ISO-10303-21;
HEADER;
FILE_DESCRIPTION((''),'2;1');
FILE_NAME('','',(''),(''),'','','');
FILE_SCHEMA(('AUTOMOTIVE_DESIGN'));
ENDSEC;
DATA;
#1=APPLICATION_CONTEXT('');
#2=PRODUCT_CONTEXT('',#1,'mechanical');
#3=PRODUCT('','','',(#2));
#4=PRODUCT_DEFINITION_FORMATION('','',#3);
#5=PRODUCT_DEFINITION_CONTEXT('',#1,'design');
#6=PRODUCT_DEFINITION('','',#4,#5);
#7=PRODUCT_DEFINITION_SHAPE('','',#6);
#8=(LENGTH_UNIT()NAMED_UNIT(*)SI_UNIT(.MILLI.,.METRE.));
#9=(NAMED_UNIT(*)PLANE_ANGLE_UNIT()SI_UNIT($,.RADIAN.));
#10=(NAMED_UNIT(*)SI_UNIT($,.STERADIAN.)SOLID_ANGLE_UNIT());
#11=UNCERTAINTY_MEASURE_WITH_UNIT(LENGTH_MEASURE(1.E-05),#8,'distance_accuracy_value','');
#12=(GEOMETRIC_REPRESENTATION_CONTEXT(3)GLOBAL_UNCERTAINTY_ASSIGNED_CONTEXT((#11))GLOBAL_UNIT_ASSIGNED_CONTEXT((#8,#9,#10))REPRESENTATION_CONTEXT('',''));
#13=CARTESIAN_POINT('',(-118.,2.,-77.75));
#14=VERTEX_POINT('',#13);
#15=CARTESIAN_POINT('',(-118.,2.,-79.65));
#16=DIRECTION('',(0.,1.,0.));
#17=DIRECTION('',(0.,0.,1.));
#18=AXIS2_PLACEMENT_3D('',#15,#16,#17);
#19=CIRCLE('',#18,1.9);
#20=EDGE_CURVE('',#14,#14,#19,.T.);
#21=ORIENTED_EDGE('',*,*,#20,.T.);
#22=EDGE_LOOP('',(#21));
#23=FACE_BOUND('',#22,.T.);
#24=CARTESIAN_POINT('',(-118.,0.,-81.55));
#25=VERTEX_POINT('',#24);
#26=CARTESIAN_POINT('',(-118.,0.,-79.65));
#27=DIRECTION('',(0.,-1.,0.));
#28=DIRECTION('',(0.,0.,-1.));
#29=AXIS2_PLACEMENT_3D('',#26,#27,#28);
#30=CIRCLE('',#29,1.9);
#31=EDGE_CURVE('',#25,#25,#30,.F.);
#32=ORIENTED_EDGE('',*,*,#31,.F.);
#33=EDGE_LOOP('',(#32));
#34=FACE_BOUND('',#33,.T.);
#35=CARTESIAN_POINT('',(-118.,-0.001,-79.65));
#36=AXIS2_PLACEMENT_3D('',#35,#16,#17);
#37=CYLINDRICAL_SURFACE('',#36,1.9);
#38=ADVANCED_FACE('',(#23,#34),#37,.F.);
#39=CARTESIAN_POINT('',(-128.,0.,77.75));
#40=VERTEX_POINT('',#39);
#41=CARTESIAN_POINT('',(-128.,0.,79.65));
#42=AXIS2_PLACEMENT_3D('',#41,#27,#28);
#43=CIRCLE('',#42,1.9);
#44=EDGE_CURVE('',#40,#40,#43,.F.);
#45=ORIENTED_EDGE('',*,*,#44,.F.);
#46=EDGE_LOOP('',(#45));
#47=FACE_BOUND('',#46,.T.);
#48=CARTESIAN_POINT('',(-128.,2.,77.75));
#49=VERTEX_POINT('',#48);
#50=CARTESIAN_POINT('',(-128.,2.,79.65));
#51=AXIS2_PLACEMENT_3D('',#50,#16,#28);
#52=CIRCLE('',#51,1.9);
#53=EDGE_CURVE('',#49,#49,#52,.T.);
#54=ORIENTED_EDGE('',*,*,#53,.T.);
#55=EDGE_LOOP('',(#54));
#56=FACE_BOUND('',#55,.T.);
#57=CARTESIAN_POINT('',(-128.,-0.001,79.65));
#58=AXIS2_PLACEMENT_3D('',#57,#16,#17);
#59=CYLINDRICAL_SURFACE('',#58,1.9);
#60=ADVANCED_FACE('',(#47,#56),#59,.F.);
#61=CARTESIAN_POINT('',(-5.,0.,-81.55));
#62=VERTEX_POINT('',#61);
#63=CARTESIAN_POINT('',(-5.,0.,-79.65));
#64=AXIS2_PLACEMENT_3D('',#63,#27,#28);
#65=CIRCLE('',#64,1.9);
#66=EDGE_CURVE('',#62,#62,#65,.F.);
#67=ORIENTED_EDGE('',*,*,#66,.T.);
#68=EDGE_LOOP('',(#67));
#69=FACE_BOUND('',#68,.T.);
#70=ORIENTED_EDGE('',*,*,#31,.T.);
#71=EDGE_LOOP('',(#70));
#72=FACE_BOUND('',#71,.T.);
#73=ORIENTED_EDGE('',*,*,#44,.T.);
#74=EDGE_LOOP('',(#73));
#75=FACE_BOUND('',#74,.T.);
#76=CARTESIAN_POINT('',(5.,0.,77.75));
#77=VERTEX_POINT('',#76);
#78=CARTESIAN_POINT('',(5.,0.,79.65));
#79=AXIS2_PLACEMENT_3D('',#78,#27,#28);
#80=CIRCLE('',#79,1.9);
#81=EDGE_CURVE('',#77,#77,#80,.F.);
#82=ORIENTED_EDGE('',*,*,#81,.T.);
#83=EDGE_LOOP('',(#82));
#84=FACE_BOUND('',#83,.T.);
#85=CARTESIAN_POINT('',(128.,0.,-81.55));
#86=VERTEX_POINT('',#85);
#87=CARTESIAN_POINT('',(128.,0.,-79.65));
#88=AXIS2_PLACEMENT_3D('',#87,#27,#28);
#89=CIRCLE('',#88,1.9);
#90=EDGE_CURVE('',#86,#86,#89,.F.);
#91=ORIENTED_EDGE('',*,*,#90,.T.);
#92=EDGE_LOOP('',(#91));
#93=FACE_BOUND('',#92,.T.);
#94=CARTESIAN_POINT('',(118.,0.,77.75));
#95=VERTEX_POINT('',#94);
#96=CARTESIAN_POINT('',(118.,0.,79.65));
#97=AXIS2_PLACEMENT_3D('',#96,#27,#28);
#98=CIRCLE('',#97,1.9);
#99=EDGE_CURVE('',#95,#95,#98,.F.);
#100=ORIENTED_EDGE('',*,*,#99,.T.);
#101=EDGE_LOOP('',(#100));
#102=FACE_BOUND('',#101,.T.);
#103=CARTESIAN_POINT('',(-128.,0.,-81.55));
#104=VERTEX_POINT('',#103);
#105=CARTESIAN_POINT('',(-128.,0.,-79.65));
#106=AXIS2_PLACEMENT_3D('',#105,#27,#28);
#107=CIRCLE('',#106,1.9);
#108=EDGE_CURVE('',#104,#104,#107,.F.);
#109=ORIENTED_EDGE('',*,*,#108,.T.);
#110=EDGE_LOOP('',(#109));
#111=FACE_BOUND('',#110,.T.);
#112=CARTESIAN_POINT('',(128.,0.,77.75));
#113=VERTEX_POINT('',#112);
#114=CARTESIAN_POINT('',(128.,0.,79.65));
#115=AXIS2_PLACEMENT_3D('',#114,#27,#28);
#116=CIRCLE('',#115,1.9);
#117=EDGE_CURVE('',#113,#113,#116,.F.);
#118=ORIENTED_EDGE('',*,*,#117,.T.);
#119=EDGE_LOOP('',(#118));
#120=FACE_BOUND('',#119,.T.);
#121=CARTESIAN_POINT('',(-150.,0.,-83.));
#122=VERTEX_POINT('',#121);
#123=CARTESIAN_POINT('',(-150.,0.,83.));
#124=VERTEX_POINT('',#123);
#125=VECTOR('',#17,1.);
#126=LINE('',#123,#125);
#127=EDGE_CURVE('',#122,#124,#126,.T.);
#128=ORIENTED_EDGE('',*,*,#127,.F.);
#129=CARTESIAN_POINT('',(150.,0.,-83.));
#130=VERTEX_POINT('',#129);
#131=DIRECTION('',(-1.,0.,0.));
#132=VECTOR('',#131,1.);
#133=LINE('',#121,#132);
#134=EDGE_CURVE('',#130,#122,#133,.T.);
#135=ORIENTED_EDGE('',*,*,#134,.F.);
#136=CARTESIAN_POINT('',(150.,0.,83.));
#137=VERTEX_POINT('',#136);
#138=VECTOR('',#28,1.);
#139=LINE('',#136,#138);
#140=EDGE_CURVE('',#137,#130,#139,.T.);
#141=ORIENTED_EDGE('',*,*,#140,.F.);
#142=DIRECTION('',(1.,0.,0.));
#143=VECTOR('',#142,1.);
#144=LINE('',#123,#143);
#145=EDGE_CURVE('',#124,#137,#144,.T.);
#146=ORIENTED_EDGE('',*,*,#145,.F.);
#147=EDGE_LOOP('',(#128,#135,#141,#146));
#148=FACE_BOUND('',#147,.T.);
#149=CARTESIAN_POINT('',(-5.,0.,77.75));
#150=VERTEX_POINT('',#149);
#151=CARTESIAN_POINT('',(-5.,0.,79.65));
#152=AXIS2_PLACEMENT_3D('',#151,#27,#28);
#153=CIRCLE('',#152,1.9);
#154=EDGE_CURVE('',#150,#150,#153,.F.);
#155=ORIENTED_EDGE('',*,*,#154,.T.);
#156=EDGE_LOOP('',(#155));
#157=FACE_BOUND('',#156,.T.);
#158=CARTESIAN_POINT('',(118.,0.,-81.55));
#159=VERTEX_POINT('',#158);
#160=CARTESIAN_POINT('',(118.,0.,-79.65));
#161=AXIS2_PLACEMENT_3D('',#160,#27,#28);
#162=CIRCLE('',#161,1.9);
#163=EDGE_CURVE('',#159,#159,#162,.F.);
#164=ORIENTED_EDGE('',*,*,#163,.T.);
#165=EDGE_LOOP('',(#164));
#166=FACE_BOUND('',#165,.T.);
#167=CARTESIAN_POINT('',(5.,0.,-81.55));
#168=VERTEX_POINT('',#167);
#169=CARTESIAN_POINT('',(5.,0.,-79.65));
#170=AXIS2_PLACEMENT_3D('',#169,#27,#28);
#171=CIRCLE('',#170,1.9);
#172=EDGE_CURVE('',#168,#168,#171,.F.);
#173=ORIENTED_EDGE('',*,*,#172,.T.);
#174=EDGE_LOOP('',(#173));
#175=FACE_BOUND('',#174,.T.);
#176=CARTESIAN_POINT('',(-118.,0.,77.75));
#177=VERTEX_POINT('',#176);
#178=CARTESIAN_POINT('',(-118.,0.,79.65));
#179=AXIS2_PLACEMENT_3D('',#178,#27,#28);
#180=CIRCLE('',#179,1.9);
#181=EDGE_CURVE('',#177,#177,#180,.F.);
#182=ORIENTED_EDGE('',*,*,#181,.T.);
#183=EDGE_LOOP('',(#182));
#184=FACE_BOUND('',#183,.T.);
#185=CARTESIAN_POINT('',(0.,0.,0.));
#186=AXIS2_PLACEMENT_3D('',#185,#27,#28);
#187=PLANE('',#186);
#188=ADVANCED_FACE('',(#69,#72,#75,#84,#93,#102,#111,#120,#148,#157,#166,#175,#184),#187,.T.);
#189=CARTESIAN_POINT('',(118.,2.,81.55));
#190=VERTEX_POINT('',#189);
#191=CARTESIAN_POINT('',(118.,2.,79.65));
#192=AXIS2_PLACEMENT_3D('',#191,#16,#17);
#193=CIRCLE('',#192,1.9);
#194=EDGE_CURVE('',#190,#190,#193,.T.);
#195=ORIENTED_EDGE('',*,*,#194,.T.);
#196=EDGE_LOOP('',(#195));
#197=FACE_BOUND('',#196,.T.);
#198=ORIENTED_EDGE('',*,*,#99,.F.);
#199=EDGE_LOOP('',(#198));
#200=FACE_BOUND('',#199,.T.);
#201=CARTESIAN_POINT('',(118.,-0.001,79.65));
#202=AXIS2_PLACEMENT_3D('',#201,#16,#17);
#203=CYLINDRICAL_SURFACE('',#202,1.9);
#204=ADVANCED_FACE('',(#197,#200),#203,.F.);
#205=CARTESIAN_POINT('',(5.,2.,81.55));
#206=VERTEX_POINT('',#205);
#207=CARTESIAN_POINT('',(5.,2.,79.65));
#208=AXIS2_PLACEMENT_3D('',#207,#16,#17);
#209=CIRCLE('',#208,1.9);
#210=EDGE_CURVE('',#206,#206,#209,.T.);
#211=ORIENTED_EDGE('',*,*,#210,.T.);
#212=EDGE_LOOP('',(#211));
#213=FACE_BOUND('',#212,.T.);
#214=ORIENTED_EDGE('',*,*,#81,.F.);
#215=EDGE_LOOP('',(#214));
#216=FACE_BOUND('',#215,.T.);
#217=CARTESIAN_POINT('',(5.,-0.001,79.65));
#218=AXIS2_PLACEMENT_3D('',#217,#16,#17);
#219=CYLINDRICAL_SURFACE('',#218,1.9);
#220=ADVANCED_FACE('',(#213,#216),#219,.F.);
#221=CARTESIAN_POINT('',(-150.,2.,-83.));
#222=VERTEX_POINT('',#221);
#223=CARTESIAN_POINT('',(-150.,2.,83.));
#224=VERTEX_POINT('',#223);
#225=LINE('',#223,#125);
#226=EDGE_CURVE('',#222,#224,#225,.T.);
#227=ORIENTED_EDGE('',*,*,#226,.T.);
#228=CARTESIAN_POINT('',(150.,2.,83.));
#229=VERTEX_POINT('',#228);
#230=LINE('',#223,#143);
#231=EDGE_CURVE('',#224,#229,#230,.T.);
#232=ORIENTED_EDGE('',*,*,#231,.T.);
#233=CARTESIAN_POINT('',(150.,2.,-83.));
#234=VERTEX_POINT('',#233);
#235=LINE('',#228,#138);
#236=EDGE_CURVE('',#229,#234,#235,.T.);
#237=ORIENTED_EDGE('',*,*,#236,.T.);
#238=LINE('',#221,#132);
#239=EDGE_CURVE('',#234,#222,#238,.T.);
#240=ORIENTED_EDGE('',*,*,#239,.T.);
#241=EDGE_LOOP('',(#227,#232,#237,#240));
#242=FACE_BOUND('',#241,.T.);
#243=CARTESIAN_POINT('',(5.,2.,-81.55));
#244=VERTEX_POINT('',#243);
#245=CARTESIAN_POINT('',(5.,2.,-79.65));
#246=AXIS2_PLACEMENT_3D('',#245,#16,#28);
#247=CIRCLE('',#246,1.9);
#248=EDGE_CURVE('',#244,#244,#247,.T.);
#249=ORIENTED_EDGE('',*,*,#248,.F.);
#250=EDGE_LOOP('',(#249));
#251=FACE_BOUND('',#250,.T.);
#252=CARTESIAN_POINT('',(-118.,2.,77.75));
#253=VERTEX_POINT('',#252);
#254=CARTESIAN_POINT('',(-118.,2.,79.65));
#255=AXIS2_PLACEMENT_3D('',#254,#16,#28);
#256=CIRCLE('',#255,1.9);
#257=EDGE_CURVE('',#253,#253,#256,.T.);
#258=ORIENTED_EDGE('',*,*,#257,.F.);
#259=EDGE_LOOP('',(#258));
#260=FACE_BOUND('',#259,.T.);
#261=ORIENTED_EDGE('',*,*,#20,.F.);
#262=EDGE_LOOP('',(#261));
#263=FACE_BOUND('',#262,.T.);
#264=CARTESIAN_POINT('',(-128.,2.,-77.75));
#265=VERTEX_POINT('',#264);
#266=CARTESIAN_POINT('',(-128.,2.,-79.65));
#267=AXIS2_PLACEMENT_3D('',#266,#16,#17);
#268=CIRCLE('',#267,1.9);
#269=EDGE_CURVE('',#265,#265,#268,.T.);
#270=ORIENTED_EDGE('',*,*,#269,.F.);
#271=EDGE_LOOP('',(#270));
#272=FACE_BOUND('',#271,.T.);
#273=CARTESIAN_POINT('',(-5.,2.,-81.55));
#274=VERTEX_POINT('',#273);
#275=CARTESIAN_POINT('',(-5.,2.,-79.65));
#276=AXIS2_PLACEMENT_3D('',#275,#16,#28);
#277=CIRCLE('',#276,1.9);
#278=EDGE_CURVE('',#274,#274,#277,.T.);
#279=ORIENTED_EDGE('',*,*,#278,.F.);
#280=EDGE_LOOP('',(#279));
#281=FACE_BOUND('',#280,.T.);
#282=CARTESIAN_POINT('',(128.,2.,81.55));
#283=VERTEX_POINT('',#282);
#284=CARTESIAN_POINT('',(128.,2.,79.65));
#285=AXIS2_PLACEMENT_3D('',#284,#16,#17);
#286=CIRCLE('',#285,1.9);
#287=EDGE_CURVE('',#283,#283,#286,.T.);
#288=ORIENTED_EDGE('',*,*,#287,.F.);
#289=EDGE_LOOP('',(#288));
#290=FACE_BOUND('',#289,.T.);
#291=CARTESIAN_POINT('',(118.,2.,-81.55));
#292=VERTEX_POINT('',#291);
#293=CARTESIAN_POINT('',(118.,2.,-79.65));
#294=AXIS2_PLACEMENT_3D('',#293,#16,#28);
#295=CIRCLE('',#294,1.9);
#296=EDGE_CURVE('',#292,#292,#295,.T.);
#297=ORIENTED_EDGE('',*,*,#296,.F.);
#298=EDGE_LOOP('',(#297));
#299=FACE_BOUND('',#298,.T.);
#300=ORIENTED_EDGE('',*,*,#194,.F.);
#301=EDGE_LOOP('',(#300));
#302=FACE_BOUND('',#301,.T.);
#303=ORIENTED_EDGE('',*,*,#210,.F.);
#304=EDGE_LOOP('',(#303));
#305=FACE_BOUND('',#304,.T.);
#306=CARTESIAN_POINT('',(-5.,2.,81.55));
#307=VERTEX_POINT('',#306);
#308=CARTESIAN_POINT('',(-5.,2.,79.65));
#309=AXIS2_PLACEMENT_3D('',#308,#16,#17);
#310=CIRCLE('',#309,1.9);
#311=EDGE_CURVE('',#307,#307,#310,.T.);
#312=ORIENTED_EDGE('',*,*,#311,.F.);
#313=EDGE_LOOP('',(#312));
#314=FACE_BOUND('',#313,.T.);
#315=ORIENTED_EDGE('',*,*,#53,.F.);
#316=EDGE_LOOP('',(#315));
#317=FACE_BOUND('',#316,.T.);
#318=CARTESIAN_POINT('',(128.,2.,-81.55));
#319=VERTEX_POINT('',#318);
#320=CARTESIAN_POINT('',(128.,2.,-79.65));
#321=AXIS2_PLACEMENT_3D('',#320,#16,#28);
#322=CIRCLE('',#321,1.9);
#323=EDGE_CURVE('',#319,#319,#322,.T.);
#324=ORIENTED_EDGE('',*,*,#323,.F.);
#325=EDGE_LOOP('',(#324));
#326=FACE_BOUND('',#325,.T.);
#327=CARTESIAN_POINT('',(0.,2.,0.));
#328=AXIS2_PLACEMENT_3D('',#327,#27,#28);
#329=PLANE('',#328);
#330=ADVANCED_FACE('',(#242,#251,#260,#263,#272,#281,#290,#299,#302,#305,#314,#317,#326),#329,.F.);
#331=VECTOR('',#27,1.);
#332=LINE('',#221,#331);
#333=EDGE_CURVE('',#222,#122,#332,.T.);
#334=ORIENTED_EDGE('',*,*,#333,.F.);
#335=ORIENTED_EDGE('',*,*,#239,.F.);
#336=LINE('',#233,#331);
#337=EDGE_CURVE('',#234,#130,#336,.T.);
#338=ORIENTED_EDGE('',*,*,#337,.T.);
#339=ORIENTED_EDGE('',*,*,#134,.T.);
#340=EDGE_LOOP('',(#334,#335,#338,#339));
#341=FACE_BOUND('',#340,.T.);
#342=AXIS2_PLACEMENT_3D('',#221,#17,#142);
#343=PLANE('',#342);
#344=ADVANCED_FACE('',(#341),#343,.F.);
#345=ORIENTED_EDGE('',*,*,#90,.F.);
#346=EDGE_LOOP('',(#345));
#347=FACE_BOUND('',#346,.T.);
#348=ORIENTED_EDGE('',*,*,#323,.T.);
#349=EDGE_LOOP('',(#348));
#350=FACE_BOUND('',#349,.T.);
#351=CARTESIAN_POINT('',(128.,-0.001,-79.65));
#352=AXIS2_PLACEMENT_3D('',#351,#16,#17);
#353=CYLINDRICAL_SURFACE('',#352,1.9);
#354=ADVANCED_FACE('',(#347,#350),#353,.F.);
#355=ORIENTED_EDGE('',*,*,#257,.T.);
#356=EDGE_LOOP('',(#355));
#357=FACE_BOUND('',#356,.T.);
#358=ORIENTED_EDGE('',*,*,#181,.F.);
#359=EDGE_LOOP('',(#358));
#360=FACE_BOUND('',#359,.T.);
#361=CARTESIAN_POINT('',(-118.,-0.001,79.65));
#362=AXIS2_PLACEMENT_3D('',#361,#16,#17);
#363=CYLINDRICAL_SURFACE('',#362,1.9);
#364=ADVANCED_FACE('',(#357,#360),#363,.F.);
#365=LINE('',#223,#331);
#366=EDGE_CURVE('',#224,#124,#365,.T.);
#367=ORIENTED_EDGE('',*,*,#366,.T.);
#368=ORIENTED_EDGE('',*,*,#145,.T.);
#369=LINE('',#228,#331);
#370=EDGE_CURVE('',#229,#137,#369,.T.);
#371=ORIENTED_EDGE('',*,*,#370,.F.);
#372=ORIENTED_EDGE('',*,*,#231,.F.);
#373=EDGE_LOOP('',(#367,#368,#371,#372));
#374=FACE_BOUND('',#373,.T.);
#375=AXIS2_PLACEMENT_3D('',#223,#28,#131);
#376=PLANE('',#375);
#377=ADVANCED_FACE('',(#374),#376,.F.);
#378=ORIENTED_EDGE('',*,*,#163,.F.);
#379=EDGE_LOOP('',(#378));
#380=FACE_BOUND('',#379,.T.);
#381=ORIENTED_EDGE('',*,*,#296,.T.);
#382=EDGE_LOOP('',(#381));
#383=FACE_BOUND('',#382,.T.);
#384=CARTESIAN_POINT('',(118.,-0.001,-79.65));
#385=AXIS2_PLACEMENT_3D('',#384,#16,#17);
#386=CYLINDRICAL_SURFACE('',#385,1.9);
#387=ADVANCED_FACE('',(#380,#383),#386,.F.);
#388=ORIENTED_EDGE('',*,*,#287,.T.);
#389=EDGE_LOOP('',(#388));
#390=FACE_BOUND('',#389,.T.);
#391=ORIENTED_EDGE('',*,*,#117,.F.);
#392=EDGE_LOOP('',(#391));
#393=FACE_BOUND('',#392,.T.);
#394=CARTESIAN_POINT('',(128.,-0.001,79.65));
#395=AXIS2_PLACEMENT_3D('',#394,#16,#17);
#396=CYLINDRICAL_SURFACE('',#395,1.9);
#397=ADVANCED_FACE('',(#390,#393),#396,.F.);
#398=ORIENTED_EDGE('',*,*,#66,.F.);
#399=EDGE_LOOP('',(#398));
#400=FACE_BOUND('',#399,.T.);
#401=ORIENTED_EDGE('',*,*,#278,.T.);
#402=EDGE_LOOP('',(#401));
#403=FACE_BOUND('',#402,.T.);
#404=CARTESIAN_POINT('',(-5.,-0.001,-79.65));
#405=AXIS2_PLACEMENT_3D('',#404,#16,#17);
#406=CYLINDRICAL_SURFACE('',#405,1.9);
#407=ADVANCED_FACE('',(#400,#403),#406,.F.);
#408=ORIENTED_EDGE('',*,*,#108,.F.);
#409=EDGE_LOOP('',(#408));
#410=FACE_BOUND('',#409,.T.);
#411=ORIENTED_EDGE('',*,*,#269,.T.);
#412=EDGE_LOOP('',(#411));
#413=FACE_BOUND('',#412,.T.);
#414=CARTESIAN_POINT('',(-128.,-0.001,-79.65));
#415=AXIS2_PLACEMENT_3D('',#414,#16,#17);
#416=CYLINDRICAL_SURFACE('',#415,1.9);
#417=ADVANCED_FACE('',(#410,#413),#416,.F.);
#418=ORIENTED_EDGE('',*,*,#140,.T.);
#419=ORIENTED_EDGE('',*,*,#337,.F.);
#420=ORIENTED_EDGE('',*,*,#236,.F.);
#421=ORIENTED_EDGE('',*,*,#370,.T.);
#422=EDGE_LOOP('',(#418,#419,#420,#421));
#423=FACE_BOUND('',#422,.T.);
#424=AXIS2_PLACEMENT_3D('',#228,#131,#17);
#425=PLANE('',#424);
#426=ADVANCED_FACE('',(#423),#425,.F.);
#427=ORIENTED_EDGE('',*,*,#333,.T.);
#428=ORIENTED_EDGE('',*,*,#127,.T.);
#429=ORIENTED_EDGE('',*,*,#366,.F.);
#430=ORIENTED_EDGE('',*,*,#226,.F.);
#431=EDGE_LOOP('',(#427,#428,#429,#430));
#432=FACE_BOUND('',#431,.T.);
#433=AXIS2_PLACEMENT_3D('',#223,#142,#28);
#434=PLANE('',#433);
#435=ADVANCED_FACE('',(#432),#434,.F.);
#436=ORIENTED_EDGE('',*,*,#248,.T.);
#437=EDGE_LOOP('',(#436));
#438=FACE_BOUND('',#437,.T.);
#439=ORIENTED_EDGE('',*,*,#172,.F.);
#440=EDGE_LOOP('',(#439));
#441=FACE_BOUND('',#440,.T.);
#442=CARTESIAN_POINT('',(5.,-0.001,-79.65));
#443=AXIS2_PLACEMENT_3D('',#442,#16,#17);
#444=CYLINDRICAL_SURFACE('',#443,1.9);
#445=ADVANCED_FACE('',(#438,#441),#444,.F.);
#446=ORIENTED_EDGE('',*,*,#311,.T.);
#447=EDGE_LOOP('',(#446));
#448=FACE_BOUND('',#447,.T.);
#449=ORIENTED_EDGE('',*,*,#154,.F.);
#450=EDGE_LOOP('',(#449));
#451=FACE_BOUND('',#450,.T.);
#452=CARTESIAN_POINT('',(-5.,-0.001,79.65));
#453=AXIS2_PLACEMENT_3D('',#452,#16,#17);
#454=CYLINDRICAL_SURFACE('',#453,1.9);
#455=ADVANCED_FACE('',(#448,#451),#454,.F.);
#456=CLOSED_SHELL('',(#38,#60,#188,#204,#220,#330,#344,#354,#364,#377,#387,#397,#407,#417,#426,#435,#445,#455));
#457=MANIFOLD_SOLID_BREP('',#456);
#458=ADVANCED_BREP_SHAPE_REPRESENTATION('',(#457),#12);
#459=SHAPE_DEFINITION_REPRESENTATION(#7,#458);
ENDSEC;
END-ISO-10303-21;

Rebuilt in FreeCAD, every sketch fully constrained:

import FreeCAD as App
import Part
import Sketcher
from FreeCAD import Vector
Q = App.Units.Quantity


def add_polygon(sketch, points):
    """Adds a closed chain of lines whose ends are joined by coincident constraints."""
    first, n = sketch.GeometryCount, len(points)
    for a, b in zip(points, points[1:] + points[:1]):
        sketch.addGeometry(Part.LineSegment(App.Vector(*a, 0), App.Vector(*b, 0)), False)
    for i in range(n):
        sketch.addConstraint(Sketcher.Constraint("Coincident", first + i, 2, first + (i + 1) % n, 1))

doc = App.newDocument("Part")
body = doc.addObject("PartDesign::Body", "Body")

sketch1 = body.newObject("Sketcher::SketchObject", "Sketch")
sketch1.AttachmentSupport = (doc.getObject("XZ_Plane"), [""])
sketch1.MapMode = "FlatFace"
add_polygon(sketch1, [(-150, -83), (-150, 83), (150, 83), (150, -83)])
sketch1.addConstraint([
    Sketcher.Constraint("Vertical", 0),
    Sketcher.Constraint("Horizontal", 1),
    Sketcher.Constraint("Vertical", 2),
    Sketcher.Constraint("Horizontal", 3),
    Sketcher.Constraint("Symmetric", 0, 2, 2, 2, -1, 1),
    Sketcher.Constraint("DistanceX", 1, 1, 1, 2, Q("300 mm")),
    Sketcher.Constraint("DistanceY", 0, 1, 0, 2, Q("166 mm")),
])
pad1 = body.newObject("PartDesign::Pad", "Pad")
pad1.Profile = sketch1
pad1.Length = 2
pad1.Reversed = True

sketch2 = body.newObject("Sketcher::SketchObject", "Sketch001")
sketch2.AttachmentSupport = (doc.getObject("XZ_Plane"), [""])
sketch2.MapMode = "FlatFace"
sketch2.AttachmentOffset = App.Placement(Vector(0, 0, -2), App.Rotation())
sketch2.addGeometry([
    Part.Circle(Vector(128, 79.7, 0), Vector(0, 0, 1), 1.9),
    Part.Circle(Vector(118, 79.7, 0), Vector(0, 0, 1), 1.9),
    Part.Circle(Vector(118, -79.7, 0), Vector(0, 0, 1), 1.9),
    Part.Circle(Vector(128, -79.7, 0), Vector(0, 0, 1), 1.9),
    Part.Circle(Vector(-118, 79.7, 0), Vector(0, 0, 1), 1.9),
    Part.Circle(Vector(-128, 79.7, 0), Vector(0, 0, 1), 1.9),
    Part.Circle(Vector(-128, -79.7, 0), Vector(0, 0, 1), 1.9),
    Part.Circle(Vector(-118, -79.7, 0), Vector(0, 0, 1), 1.9),
    Part.Circle(Vector(5, 79.7, 0), Vector(0, 0, 1), 1.9),
    Part.Circle(Vector(-5, 79.7, 0), Vector(0, 0, 1), 1.9),
    Part.Circle(Vector(5, -79.7, 0), Vector(0, 0, 1), 1.9),
    Part.Circle(Vector(-5, -79.7, 0), Vector(0, 0, 1), 1.9),
], False)
sketch2.addConstraint([
    Sketcher.Constraint("Equal", 0, 1),
    Sketcher.Constraint("Equal", 1, 2),
    Sketcher.Constraint("Equal", 2, 3),
    Sketcher.Constraint("Equal", 3, 4),
    Sketcher.Constraint("Equal", 4, 5),
    Sketcher.Constraint("Equal", 5, 6),
    Sketcher.Constraint("Equal", 6, 7),
    Sketcher.Constraint("Equal", 7, 8),
    Sketcher.Constraint("Equal", 8, 9),
    Sketcher.Constraint("Equal", 9, 10),
    Sketcher.Constraint("Equal", 10, 11),
    Sketcher.Constraint("Symmetric", 2, 3, 4, 3, -1, 1),
    Sketcher.Constraint("Symmetric", 3, 3, 5, 3, -1, 1),
    Sketcher.Constraint("Symmetric", 0, 3, 6, 3, -1, 1),
    Sketcher.Constraint("Symmetric", 1, 3, 7, 3, -1, 1),
    Sketcher.Constraint("Symmetric", 9, 3, 10, 3, -1, 1),
    Sketcher.Constraint("Symmetric", 8, 3, 11, 3, -1, 1),
    Sketcher.Constraint("Symmetric", 1, 3, 4, 3, -2),
    Sketcher.Constraint("Symmetric", 0, 3, 5, 3, -2),
    Sketcher.Constraint("Symmetric", 8, 3, 9, 3, -2),
    Sketcher.Constraint("Horizontal", 0, 3, 1, 3),
    Sketcher.Constraint("Horizontal", 5, 3, 8, 3),
    Sketcher.Constraint("Diameter", 0, Q("3.8 mm")),
    Sketcher.Constraint("DistanceX", -1, 1, 0, 3, Q("128 mm")),
    Sketcher.Constraint("DistanceX", -1, 1, 1, 3, Q("118 mm")),
    Sketcher.Constraint("DistanceX", -1, 1, 8, 3, Q("5 mm")),
    Sketcher.Constraint("DistanceY", 2, 3, 1, 3, Q("159.3 mm")),
])
pocket1 = body.newObject("PartDesign::Pocket", "Pocket")
pocket1.Profile = sketch2
pocket1.Length = 2
pocket1.Reversed = True

doc.recompute()
